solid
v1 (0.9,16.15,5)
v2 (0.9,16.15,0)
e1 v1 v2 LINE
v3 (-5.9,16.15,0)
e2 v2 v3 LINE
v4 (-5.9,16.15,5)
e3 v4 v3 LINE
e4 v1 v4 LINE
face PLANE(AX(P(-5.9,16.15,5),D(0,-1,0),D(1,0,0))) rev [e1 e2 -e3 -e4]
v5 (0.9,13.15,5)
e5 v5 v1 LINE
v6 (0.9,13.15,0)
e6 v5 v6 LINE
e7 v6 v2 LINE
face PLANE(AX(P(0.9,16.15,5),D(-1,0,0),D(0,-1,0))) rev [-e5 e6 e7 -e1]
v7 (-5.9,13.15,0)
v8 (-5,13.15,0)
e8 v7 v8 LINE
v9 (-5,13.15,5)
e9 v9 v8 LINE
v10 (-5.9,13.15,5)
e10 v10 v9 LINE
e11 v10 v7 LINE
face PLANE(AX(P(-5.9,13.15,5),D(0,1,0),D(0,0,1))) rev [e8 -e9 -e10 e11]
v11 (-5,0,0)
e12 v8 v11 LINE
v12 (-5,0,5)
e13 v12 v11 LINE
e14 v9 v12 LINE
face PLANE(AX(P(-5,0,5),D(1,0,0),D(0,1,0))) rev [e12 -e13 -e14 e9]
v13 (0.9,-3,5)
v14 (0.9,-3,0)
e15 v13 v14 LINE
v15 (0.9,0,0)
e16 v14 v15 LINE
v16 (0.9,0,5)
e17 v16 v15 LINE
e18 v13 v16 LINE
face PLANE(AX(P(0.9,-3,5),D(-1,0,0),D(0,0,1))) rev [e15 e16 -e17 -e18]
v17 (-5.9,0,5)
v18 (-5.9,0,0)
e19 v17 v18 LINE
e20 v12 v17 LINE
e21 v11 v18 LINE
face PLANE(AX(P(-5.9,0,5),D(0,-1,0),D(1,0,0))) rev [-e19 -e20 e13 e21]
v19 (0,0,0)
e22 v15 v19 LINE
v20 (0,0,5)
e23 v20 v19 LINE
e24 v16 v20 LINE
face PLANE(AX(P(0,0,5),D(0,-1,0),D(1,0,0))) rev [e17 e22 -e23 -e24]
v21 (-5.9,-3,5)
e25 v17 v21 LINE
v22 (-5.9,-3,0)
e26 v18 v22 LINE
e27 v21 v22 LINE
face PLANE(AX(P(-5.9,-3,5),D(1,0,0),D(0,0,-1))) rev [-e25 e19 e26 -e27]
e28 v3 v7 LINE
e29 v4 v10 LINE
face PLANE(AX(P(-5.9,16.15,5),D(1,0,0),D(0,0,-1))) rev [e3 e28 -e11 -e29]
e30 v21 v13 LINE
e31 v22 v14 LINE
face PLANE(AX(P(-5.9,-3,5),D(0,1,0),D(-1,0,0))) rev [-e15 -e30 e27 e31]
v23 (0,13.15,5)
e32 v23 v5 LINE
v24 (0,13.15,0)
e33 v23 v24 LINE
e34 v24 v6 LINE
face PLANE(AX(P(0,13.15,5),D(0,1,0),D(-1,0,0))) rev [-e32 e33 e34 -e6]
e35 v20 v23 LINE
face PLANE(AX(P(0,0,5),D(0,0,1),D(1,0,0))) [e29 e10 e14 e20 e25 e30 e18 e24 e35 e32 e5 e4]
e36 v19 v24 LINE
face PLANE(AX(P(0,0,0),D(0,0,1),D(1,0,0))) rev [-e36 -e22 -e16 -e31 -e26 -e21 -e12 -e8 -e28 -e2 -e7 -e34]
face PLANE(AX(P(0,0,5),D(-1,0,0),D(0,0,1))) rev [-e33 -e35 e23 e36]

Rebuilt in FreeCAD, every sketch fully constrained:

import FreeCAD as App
import Part
import Sketcher
from FreeCAD import Vector

doc = App.newDocument("Part")
body = doc.addObject("PartDesign::Body", "Body")

sketch1 = body.newObject("Sketcher::SketchObject", "Sketch")
sketch1.AttachmentSupport = (doc.getObject("XY_Plane"), [""])
sketch1.MapMode = "FlatFace"
sketch1.addGeometry([
    Part.LineSegment(Vector(0, 0, 0), Vector(0, 13.2, 0)),
    Part.LineSegment(Vector(0, 13.2, 0), Vector(0.9, 13.2, 0)),
    Part.LineSegment(Vector(0.9, 13.2, 0), Vector(0.9, 16.1, 0)),
    Part.LineSegment(Vector(0.9, 16.1, 0), Vector(-5.9, 16.1, 0)),
    Part.LineSegment(Vector(-5.9, 16.1, 0), Vector(-5.9, 13.2, 0)),
    Part.LineSegment(Vector(-5.9, 13.2, 0), Vector(-5, 13.2, 0)),
    Part.LineSegment(Vector(-5, 13.2, 0), Vector(-5, 0, 0)),
    Part.LineSegment(Vector(-5, 0, 0), Vector(-5.9, 0, 0)),
    Part.LineSegment(Vector(-5.9, 0, 0), Vector(-5.9, -3, 0)),
    Part.LineSegment(Vector(-5.9, -3, 0), Vector(0.9, -3, 0)),
    Part.LineSegment(Vector(0.9, -3, 0), Vector(0.9, 0, 0)),
    Part.LineSegment(Vector(0.9, 0, 0), Vector(0, 0, 0)),
], False)
sketch1.addConstraint([
    Sketcher.Constraint("Coincident", 0, 2, 1, 1),
    Sketcher.Constraint("Coincident", 1, 2, 2, 1),
    Sketcher.Constraint("Coincident", 2, 2, 3, 1),
    Sketcher.Constraint("Coincident", 3, 2, 4, 1),
    Sketcher.Constraint("Coincident", 4, 2, 5, 1),
    Sketcher.Constraint("Coincident", 5, 2, 6, 1),
    Sketcher.Constraint("Coincident", 6, 2, 7, 1),
    Sketcher.Constraint("Coincident", 7, 2, 8, 1),
    Sketcher.Constraint("Coincident", 8, 2, 9, 1),
    Sketcher.Constraint("Coincident", 9, 2, 10, 1),
    Sketcher.Constraint("Coincident", 10, 2, 11, 1),
    Sketcher.Constraint("Coincident", 11, 2, 0, 1),
    Sketcher.Constraint("Vertical", 0),
    Sketcher.Constraint("Horizontal", 1),
    Sketcher.Constraint("Vertical", 2),
    Sketcher.Constraint("Horizontal", 3),
    Sketcher.Constraint("Vertical", 4),
    Sketcher.Constraint("Horizontal", 5),
    Sketcher.Constraint("Vertical", 6),
    Sketcher.Constraint("Horizontal", 7),
    Sketcher.Constraint("Vertical", 8),
    Sketcher.Constraint("Horizontal", 9),
    Sketcher.Constraint("Vertical", 10),
    Sketcher.Constraint("Horizontal", 11),
    Sketcher.Constraint("Coincident", 11, 2, -1, 1),
    Sketcher.Constraint("PointOnObject", 6, 2, -1),
    Sketcher.Constraint("Horizontal", 1, 2, 4, 2),
    Sketcher.Constraint("Vertical", 4, 2, 7, 2),
    Sketcher.Constraint("Vertical", 2, 2, 9, 2),
    Sketcher.Constraint("Equal", 1, 5),
    Sketcher.Constraint("Equal", 4, 8),
    Sketcher.Constraint("DistanceY", 2, 1, 2, 2, 3.0),
    Sketcher.Constraint("DistanceX", 1, 1, 1, 2, 0.9),
    Sketcher.Constraint("DistanceX", 3, 2, 3, 1, 6.8),
    Sketcher.Constraint("DistanceY", 0, 1, 0, 2, 13.15),
])
pad1 = body.newObject("PartDesign::Pad", "Pad")
pad1.Profile = sketch1
pad1.Length = 5

doc.recompute()
